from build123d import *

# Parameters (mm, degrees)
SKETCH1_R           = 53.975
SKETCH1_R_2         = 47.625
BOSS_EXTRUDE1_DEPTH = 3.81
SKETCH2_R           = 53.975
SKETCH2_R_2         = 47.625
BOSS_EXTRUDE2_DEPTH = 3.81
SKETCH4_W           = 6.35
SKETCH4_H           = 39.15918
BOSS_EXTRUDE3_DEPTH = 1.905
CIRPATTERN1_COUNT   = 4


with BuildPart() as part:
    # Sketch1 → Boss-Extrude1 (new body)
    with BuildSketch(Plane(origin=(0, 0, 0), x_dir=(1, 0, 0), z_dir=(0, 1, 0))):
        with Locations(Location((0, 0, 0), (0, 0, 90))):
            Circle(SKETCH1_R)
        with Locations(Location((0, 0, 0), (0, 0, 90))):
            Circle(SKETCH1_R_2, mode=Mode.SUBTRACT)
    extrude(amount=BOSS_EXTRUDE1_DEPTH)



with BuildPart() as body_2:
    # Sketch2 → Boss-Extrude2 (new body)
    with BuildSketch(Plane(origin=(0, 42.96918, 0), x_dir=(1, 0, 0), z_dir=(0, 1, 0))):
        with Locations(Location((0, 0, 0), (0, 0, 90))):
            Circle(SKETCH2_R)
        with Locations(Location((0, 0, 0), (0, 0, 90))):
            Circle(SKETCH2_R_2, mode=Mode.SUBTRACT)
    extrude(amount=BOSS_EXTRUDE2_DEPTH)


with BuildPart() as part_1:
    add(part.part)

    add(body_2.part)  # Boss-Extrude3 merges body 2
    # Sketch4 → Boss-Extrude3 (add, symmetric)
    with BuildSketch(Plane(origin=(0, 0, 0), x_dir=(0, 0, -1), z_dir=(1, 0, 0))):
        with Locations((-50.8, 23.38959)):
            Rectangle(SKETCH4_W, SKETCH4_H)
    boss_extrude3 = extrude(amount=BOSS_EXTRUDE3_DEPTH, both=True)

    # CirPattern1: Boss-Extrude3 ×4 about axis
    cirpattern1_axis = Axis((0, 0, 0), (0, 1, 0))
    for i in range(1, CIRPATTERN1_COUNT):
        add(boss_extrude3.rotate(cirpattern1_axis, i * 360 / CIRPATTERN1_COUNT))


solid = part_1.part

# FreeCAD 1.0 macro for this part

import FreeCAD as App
import Part
import Sketcher
Q = App.Units.Quantity


def add_polygon(sketch, points):
    """Adds a closed chain of lines whose ends are joined by coincident constraints."""
    first, n = sketch.GeometryCount, len(points)
    for a, b in zip(points, points[1:] + points[:1]):
        sketch.addGeometry(Part.LineSegment(App.Vector(*a, 0), App.Vector(*b, 0)), False)
    for i in range(n):
        sketch.addConstraint(Sketcher.Constraint("Coincident", first + i, 2, first + (i + 1) % n, 1))

doc = App.newDocument("Part")
params = doc.addObject("Spreadsheet::Sheet", "Params")
for row, (alias, value) in enumerate([
    ("sketch1_diameter", "4.25 in"),
    ("sketch1_diameter2", "3.75 in"),
    ("pad1_length", "0.15 in"),
    ("sketch2_diameter", "4.25 in"),
    ("sketch2_diameter2", "3.75 in"),
    ("pad2_length", "0.15 in"),
    ("sketch3_height", "0.25 in"),
    ("pad3_length", "0.15 in"),
], start=1):
    params.set(f"A{row}", alias)
    params.set(f"B{row}", "=" + value)
    params.setAlias(f"B{row}", alias)

body = doc.addObject("PartDesign::Body", "Body")

# Sketch on XZ plane
sketch1 = body.newObject("Sketcher::SketchObject", "Sketch")
sketch1.AttachmentSupport = (doc.getObject("XZ_Plane"), [""])
sketch1.MapMode = "FlatFace"
sketch1.addGeometry(Part.Circle(App.Vector(0, 0, 0), App.Vector(0, 0, 1), 53.975), False)
sketch1.addGeometry(Part.Circle(App.Vector(0, 0, 0), App.Vector(0, 0, 1), 47.625), False)
sketch1.addConstraint(Sketcher.Constraint("Coincident", 0, 3, -1, 1))
sketch1.addConstraint(Sketcher.Constraint("Coincident", 1, 3, -1, 1))
sketch1.addConstraint(Sketcher.Constraint("Diameter", 0, Q("4.25 in")))
sketch1.addConstraint(Sketcher.Constraint("Diameter", 1, Q("3.75 in")))
sketch1.setExpression("Constraints[2]", "Params.sketch1_diameter")
sketch1.setExpression("Constraints[3]", "Params.sketch1_diameter2")
pad1 = body.newObject("PartDesign::Pad", "Pad")
pad1.Profile = sketch1
pad1.setExpression("Length", "Params.pad1_length")
pad1.Reversed = True
body2 = doc.addObject("PartDesign::Body", "Body001")

# Sketch on XZ plane
sketch2 = body2.newObject("Sketcher::SketchObject", "Sketch001")
sketch2.AttachmentSupport = (doc.getObject("XZ_Plane001"), [""])
sketch2.MapMode = "FlatFace"
sketch2.AttachmentOffset = App.Placement(App.Vector(0, 0, -1.6917 * 25.4), App.Rotation())
sketch2.addGeometry(Part.Circle(App.Vector(0, 0, 0), App.Vector(0, 0, 1), 53.975), False)
sketch2.addGeometry(Part.Circle(App.Vector(0, 0, 0), App.Vector(0, 0, 1), 47.625), False)
sketch2.addConstraint(Sketcher.Constraint("Coincident", 0, 3, -1, 1))
sketch2.addConstraint(Sketcher.Constraint("Coincident", 1, 3, -1, 1))
sketch2.addConstraint(Sketcher.Constraint("Diameter", 0, Q("4.25 in")))
sketch2.addConstraint(Sketcher.Constraint("Diameter", 1, Q("3.75 in")))
sketch2.setExpression("Constraints[2]", "Params.sketch2_diameter")
sketch2.setExpression("Constraints[3]", "Params.sketch2_diameter2")
pad2 = body2.newObject("PartDesign::Pad", "Pad001")
pad2.Profile = sketch2
pad2.setExpression("Length", "Params.pad2_length")
pad2.Reversed = True
body.AllowCompound = True
doc.recompute()

boolean = body.newObject("PartDesign::Boolean", "Boolean")
boolean.Type = "Fuse"
boolean.addObjects([body2])

# Sketch on YZ plane
sketch3 = body.newObject("Sketcher::SketchObject", "Sketch002")
sketch3.AttachmentSupport = (doc.getObject("YZ_Plane"), [""])
sketch3.MapMode = "FlatFace"
add_polygon(sketch3, [(42.96918, 53.975), (3.81, 53.975), (3.81, 47.625), (42.96918, 47.625)])  # lines 0-3
sketch3.addConstraint(Sketcher.Constraint("Horizontal", 0))
sketch3.addConstraint(Sketcher.Constraint("Vertical", 1))
sketch3.addConstraint(Sketcher.Constraint("Horizontal", 2))
sketch3.addConstraint(Sketcher.Constraint("Vertical", 3))
sketch3.addConstraint(Sketcher.Constraint("DistanceY", 1, 2, 1, 1, Q("0.25 in")))
sketch3.addConstraint(Sketcher.Constraint("DistanceX", -1, 1, 0, 2, Q("0.15 in")))
sketch3.addConstraint(Sketcher.Constraint("DistanceX", 0, 2, 0, 1, Q("1.5417 in")))
sketch3.addConstraint(Sketcher.Constraint("DistanceY", -1, 1, 0, 2, Q("2.125 in")))
sketch3.setExpression("Constraints[8]", "Params.sketch3_height")
pad3 = body.newObject("PartDesign::Pad", "Pad002")
pad3.Profile = sketch3
pad3.setExpression("Length", "Params.pad3_length")
pad3.Midplane = True
doc.recompute()

polarpattern = body.newObject("PartDesign::PolarPattern", "PolarPattern")
polarpattern.Originals = [pad3]
polarpattern.Axis = (doc.getObject("Y_Axis"), [""])
polarpattern.Angle = 360
polarpattern.Occurrences = 4
body.Tip = polarpattern

doc.recompute()
